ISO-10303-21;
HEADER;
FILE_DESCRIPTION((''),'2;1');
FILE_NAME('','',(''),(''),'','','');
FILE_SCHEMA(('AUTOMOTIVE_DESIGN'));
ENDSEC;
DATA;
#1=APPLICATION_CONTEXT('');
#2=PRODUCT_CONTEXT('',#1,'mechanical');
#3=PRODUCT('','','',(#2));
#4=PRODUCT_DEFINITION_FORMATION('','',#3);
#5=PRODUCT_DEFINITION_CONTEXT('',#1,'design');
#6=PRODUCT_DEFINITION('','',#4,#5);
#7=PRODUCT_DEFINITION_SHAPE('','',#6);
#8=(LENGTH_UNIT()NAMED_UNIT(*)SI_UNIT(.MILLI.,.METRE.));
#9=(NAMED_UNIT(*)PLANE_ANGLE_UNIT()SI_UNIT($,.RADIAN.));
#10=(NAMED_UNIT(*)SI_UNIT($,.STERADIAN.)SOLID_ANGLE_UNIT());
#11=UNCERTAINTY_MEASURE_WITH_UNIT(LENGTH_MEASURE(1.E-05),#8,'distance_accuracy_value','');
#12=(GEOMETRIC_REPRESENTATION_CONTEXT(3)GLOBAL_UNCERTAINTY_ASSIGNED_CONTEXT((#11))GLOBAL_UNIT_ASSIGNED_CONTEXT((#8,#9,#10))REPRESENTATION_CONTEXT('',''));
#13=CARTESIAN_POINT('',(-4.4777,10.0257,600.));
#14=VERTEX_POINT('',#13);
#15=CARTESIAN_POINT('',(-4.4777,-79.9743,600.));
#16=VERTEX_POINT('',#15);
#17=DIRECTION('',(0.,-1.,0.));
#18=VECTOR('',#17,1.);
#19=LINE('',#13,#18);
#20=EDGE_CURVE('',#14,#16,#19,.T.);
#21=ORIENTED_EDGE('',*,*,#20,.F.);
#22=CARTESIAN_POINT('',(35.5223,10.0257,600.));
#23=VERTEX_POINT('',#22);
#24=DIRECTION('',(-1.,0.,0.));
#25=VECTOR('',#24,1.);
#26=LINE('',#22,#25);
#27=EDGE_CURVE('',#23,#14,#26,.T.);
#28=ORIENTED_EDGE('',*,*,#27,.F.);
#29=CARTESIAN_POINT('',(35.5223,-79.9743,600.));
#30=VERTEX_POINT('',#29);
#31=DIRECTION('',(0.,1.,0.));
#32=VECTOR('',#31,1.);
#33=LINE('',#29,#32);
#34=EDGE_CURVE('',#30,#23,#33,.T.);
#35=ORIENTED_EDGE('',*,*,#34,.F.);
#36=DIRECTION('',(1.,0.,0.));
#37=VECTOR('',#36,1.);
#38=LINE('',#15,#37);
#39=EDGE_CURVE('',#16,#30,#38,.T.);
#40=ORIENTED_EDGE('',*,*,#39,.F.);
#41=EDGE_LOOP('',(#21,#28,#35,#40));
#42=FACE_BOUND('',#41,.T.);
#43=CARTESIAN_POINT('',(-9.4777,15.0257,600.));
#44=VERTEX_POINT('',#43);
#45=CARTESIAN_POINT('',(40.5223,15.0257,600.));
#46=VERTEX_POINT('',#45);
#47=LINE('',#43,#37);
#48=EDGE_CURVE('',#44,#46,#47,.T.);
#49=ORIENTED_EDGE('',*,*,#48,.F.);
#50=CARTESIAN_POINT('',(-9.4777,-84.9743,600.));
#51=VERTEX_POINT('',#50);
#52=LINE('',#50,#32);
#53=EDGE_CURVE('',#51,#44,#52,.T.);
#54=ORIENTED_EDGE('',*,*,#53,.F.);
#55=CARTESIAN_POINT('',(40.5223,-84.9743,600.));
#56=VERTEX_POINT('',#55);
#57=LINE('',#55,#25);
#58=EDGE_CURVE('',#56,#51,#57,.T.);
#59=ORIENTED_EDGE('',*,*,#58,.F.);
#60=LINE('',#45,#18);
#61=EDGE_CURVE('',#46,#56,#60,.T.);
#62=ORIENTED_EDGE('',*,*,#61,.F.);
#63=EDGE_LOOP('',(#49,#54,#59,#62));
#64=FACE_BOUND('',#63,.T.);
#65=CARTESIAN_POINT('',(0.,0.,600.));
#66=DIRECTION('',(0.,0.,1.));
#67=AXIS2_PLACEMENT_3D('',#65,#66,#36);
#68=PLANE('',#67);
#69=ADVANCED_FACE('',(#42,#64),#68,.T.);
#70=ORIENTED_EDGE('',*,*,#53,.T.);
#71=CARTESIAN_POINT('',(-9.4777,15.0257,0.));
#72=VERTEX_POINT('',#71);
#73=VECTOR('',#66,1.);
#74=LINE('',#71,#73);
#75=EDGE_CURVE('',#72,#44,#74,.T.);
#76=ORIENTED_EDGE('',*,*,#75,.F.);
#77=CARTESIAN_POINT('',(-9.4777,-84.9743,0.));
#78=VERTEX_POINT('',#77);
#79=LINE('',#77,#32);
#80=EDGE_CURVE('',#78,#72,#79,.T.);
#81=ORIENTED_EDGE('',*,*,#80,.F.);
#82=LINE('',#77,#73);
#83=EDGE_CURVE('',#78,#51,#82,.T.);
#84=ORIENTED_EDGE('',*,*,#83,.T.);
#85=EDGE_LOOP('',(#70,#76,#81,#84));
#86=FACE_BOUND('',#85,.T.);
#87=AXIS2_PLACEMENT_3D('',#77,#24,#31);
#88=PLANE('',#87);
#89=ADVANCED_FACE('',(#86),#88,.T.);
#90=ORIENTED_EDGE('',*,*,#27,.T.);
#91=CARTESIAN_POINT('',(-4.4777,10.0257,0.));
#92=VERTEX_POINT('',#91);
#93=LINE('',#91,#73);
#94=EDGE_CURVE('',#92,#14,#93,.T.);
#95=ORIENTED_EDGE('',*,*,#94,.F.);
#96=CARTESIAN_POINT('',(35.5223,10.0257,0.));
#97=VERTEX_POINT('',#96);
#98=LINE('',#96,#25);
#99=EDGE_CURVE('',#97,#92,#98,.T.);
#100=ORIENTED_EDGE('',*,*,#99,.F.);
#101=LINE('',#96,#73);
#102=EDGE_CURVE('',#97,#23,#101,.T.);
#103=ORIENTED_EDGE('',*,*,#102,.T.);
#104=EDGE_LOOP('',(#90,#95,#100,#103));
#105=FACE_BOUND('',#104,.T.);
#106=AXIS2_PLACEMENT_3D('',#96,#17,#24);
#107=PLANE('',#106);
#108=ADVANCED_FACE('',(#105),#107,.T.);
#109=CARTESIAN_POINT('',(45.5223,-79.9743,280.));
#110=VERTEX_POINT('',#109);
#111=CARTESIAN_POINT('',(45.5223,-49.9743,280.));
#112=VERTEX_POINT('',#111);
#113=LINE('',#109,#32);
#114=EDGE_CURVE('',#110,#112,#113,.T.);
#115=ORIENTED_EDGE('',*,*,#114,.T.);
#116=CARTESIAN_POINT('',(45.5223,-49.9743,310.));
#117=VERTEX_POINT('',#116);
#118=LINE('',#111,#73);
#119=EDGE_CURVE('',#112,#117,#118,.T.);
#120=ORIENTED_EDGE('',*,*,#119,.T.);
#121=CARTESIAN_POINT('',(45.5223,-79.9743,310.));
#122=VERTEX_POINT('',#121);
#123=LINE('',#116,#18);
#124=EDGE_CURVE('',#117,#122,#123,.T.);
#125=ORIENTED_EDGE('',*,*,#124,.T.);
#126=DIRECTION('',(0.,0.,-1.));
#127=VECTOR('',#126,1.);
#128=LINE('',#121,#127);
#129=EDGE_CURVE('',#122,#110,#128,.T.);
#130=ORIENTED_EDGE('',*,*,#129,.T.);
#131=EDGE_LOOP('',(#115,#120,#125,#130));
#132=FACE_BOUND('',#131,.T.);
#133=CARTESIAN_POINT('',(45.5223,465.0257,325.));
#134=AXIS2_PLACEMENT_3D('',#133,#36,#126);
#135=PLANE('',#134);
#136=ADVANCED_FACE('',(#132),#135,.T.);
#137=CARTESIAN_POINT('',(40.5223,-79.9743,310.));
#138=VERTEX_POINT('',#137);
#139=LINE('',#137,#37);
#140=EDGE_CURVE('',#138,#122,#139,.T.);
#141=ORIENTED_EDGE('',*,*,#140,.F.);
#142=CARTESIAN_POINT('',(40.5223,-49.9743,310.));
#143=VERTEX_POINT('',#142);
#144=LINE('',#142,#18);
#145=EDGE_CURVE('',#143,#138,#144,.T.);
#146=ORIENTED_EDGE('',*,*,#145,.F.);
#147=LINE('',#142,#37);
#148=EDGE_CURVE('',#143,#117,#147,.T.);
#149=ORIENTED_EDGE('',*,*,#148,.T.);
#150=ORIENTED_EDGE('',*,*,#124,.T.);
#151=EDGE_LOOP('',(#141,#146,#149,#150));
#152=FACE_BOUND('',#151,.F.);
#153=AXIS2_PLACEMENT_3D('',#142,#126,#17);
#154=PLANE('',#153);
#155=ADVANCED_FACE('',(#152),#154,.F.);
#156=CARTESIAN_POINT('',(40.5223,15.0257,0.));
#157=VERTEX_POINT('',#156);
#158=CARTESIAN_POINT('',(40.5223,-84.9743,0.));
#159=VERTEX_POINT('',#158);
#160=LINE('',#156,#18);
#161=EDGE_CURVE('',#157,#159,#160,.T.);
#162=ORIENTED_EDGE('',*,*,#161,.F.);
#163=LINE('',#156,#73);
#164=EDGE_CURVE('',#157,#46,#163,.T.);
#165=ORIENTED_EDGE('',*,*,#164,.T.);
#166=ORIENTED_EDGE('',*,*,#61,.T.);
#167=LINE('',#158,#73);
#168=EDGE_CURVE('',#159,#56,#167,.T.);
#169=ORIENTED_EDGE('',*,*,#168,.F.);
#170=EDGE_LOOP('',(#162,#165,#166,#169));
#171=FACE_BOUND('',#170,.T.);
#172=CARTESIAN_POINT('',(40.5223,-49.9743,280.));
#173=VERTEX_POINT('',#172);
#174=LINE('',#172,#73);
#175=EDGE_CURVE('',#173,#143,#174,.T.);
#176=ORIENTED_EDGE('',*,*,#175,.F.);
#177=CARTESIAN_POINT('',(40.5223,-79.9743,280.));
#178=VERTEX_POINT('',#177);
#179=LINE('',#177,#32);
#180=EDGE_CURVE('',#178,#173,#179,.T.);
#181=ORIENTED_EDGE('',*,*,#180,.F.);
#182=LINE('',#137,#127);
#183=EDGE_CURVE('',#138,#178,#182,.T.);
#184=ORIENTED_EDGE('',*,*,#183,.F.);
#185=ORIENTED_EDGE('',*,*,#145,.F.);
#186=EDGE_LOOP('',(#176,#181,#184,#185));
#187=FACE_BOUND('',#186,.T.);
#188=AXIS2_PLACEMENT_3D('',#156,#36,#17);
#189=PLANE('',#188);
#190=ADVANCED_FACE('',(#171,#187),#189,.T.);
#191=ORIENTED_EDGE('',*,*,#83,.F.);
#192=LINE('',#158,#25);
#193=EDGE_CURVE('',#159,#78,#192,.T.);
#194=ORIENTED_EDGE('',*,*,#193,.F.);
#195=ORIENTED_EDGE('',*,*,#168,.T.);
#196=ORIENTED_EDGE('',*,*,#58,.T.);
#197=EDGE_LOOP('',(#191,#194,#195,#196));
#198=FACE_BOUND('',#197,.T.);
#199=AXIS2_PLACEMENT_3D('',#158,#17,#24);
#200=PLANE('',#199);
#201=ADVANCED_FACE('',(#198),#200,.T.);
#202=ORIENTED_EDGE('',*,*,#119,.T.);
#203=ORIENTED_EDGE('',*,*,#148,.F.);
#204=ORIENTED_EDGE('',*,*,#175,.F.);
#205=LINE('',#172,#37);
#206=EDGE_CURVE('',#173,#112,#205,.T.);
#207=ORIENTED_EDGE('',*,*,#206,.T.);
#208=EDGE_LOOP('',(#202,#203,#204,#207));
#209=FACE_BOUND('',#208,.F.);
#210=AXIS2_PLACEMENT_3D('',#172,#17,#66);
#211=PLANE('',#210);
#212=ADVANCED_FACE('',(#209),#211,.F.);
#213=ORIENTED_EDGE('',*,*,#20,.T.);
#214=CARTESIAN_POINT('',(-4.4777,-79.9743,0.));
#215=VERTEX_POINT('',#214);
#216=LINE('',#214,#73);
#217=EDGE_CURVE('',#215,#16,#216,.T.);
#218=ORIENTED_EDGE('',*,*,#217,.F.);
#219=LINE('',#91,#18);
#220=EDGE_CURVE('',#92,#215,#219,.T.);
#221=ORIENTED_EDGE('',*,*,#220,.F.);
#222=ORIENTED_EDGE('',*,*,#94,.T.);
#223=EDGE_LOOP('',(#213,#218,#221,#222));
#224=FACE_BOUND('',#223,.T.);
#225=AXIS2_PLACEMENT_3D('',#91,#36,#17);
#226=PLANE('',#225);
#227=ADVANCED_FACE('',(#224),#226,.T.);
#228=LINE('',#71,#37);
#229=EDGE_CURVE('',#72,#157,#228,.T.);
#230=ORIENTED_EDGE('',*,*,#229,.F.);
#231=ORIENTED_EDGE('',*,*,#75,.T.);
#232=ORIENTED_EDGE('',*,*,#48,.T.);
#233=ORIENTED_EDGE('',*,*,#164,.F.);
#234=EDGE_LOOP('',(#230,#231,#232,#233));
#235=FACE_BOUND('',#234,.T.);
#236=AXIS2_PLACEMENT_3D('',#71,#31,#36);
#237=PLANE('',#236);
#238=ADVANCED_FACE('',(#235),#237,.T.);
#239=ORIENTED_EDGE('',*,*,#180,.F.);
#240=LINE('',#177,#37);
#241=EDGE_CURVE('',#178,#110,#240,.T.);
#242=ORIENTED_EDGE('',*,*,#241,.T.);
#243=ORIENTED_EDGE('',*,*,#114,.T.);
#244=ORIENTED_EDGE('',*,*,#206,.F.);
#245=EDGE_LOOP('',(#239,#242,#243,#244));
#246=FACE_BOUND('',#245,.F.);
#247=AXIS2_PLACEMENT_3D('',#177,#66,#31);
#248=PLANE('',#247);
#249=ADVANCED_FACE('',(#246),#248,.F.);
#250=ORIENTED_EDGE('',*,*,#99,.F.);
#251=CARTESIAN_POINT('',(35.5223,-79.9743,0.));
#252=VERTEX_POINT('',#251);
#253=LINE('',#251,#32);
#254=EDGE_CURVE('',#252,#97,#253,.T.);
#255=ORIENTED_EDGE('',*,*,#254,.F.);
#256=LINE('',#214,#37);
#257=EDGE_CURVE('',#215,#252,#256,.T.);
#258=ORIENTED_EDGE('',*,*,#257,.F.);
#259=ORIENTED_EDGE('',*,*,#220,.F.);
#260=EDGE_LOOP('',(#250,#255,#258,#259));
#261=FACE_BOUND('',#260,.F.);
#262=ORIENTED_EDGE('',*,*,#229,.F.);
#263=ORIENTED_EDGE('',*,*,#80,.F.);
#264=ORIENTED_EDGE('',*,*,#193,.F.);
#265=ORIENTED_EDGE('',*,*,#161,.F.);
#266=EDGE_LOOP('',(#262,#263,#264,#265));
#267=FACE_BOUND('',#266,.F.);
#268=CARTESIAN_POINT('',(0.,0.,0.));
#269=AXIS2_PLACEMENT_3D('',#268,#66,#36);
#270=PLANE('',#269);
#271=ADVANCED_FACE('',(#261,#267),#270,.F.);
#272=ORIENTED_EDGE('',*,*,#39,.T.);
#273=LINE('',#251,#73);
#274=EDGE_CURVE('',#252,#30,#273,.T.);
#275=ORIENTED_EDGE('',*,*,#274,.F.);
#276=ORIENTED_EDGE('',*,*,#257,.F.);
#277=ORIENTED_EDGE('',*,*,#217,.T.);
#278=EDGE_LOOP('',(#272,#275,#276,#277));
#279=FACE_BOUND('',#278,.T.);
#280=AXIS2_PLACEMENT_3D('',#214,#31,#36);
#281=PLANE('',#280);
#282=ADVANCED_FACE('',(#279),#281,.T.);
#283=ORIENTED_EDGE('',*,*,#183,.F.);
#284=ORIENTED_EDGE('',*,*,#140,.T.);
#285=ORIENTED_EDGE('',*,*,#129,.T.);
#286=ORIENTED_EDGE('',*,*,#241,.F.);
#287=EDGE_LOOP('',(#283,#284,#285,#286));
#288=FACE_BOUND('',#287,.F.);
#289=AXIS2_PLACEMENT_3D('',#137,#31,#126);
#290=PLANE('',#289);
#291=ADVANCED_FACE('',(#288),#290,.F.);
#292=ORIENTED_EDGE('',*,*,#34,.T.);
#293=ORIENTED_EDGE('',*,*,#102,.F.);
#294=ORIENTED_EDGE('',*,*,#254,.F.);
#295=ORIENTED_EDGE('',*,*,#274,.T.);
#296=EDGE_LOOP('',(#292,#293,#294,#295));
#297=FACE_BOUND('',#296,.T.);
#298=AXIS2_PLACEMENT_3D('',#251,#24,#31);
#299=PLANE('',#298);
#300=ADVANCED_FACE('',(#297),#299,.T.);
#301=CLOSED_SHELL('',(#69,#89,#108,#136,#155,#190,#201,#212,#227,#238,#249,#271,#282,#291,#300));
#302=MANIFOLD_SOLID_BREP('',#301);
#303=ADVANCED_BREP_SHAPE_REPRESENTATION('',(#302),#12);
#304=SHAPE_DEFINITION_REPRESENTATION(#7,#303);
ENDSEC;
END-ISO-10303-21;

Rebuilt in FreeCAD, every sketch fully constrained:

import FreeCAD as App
import Part
import Sketcher
from FreeCAD import Vector


def add_polygon(sketch, points):
    """Adds a closed chain of lines whose ends are joined by coincident constraints."""
    first, n = sketch.GeometryCount, len(points)
    for a, b in zip(points, points[1:] + points[:1]):
        sketch.addGeometry(Part.LineSegment(App.Vector(*a, 0), App.Vector(*b, 0)), False)
    for i in range(n):
        sketch.addConstraint(Sketcher.Constraint("Coincident", first + i, 2, first + (i + 1) % n, 1))

doc = App.newDocument("Part")
params = doc.addObject("Spreadsheet::Sheet", "Params")
for row, (alias, value) in enumerate([
    ("sketch1_width", "50 mm"),
    ("sketch1_width2", "40 mm"),
    ("sketch1_height", "100 mm"),
    ("sketch1_height2", "90 mm"),
    ("pad1_length", "600 mm"),
    ("sketch2_width", "30 mm"),
    ("pad2_length", "5 mm"),
], start=1):
    params.set(f"A{row}", alias)
    params.set(f"B{row}", "=" + value)
    params.setAlias(f"B{row}", alias)

body = doc.addObject("PartDesign::Body", "Body")

sketch1 = body.newObject("Sketcher::SketchObject", "Sketch")
sketch1.AttachmentSupport = (doc.getObject("XY_Plane"), [""])
sketch1.MapMode = "FlatFace"
add_polygon(sketch1, [(41, 15), (-9, 15), (-9, -85), (41, -85)])
add_polygon(sketch1, [(-4, 10), (36, 10), (36, -80), (-4, -80)])
sketch1.addConstraint(Sketcher.Constraint("Horizontal", 0))
sketch1.addConstraint(Sketcher.Constraint("Vertical", 1))
sketch1.addConstraint(Sketcher.Constraint("Horizontal", 2))
sketch1.addConstraint(Sketcher.Constraint("Vertical", 3))
sketch1.addConstraint(Sketcher.Constraint("Horizontal", 4))
sketch1.addConstraint(Sketcher.Constraint("Vertical", 5))
sketch1.addConstraint(Sketcher.Constraint("Horizontal", 6))
sketch1.addConstraint(Sketcher.Constraint("Vertical", 7))
sketch1.addConstraint(Sketcher.Constraint("DistanceX", 0, 2, 0, 1, 50.0))
sketch1.addConstraint(Sketcher.Constraint("DistanceX", 4, 1, 4, 2, 40.0))
sketch1.addConstraint(Sketcher.Constraint("DistanceY", 1, 2, 1, 1, 100.0))
sketch1.addConstraint(Sketcher.Constraint("DistanceY", 5, 2, 5, 1, 90.0))
sketch1.addConstraint(Sketcher.Constraint("DistanceX", 4, 2, 3, 2, 5.0))
sketch1.addConstraint(Sketcher.Constraint("DistanceY", 4, 2, 3, 2, 5.0))
sketch1.addConstraint(Sketcher.Constraint("DistanceX", 0, 2, -1, 1, 9.4777))
sketch1.addConstraint(Sketcher.Constraint("DistanceY", -1, 1, 0, 2, 15.0257))
sketch1.setExpression("Constraints[16]", "Params.sketch1_width")
sketch1.setExpression("Constraints[17]", "Params.sketch1_width2")
sketch1.setExpression("Constraints[18]", "Params.sketch1_height")
sketch1.setExpression("Constraints[19]", "Params.sketch1_height2")
pad1 = body.newObject("PartDesign::Pad", "Pad")
pad1.Profile = sketch1
pad1.setExpression("Length", "Params.pad1_length")

sketch2 = body.newObject("Sketcher::SketchObject", "Sketch001")
sketch2.AttachmentSupport = (doc.getObject("YZ_Plane"), [""])
sketch2.MapMode = "FlatFace"
sketch2.AttachmentOffset = App.Placement(Vector(0, 0, 40.5223), App.Rotation())
add_polygon(sketch2, [(-50, 310), (-80, 310), (-80, 280), (-50, 280)])
sketch2.addConstraint(Sketcher.Constraint("Horizontal", 0))
sketch2.addConstraint(Sketcher.Constraint("Vertical", 1))
sketch2.addConstraint(Sketcher.Constraint("Horizontal", 2))
sketch2.addConstraint(Sketcher.Constraint("Vertical", 3))
sketch2.addConstraint(Sketcher.Constraint("Equal", 2, 1))
sketch2.addConstraint(Sketcher.Constraint("DistanceX", 0, 2, 0, 1, 30.0))
sketch2.addConstraint(Sketcher.Constraint("DistanceY", -1, 1, 1, 2, 280.0))
sketch2.addConstraint(Sketcher.Constraint("DistanceX", 0, 2, -1, 1, 79.9743))
sketch2.setExpression("Constraints[9]", "Params.sketch2_width")
pad2 = body.newObject("PartDesign::Pad", "Pad001")
pad2.Profile = sketch2
pad2.setExpression("Length", "Params.pad2_length")

doc.recompute()
